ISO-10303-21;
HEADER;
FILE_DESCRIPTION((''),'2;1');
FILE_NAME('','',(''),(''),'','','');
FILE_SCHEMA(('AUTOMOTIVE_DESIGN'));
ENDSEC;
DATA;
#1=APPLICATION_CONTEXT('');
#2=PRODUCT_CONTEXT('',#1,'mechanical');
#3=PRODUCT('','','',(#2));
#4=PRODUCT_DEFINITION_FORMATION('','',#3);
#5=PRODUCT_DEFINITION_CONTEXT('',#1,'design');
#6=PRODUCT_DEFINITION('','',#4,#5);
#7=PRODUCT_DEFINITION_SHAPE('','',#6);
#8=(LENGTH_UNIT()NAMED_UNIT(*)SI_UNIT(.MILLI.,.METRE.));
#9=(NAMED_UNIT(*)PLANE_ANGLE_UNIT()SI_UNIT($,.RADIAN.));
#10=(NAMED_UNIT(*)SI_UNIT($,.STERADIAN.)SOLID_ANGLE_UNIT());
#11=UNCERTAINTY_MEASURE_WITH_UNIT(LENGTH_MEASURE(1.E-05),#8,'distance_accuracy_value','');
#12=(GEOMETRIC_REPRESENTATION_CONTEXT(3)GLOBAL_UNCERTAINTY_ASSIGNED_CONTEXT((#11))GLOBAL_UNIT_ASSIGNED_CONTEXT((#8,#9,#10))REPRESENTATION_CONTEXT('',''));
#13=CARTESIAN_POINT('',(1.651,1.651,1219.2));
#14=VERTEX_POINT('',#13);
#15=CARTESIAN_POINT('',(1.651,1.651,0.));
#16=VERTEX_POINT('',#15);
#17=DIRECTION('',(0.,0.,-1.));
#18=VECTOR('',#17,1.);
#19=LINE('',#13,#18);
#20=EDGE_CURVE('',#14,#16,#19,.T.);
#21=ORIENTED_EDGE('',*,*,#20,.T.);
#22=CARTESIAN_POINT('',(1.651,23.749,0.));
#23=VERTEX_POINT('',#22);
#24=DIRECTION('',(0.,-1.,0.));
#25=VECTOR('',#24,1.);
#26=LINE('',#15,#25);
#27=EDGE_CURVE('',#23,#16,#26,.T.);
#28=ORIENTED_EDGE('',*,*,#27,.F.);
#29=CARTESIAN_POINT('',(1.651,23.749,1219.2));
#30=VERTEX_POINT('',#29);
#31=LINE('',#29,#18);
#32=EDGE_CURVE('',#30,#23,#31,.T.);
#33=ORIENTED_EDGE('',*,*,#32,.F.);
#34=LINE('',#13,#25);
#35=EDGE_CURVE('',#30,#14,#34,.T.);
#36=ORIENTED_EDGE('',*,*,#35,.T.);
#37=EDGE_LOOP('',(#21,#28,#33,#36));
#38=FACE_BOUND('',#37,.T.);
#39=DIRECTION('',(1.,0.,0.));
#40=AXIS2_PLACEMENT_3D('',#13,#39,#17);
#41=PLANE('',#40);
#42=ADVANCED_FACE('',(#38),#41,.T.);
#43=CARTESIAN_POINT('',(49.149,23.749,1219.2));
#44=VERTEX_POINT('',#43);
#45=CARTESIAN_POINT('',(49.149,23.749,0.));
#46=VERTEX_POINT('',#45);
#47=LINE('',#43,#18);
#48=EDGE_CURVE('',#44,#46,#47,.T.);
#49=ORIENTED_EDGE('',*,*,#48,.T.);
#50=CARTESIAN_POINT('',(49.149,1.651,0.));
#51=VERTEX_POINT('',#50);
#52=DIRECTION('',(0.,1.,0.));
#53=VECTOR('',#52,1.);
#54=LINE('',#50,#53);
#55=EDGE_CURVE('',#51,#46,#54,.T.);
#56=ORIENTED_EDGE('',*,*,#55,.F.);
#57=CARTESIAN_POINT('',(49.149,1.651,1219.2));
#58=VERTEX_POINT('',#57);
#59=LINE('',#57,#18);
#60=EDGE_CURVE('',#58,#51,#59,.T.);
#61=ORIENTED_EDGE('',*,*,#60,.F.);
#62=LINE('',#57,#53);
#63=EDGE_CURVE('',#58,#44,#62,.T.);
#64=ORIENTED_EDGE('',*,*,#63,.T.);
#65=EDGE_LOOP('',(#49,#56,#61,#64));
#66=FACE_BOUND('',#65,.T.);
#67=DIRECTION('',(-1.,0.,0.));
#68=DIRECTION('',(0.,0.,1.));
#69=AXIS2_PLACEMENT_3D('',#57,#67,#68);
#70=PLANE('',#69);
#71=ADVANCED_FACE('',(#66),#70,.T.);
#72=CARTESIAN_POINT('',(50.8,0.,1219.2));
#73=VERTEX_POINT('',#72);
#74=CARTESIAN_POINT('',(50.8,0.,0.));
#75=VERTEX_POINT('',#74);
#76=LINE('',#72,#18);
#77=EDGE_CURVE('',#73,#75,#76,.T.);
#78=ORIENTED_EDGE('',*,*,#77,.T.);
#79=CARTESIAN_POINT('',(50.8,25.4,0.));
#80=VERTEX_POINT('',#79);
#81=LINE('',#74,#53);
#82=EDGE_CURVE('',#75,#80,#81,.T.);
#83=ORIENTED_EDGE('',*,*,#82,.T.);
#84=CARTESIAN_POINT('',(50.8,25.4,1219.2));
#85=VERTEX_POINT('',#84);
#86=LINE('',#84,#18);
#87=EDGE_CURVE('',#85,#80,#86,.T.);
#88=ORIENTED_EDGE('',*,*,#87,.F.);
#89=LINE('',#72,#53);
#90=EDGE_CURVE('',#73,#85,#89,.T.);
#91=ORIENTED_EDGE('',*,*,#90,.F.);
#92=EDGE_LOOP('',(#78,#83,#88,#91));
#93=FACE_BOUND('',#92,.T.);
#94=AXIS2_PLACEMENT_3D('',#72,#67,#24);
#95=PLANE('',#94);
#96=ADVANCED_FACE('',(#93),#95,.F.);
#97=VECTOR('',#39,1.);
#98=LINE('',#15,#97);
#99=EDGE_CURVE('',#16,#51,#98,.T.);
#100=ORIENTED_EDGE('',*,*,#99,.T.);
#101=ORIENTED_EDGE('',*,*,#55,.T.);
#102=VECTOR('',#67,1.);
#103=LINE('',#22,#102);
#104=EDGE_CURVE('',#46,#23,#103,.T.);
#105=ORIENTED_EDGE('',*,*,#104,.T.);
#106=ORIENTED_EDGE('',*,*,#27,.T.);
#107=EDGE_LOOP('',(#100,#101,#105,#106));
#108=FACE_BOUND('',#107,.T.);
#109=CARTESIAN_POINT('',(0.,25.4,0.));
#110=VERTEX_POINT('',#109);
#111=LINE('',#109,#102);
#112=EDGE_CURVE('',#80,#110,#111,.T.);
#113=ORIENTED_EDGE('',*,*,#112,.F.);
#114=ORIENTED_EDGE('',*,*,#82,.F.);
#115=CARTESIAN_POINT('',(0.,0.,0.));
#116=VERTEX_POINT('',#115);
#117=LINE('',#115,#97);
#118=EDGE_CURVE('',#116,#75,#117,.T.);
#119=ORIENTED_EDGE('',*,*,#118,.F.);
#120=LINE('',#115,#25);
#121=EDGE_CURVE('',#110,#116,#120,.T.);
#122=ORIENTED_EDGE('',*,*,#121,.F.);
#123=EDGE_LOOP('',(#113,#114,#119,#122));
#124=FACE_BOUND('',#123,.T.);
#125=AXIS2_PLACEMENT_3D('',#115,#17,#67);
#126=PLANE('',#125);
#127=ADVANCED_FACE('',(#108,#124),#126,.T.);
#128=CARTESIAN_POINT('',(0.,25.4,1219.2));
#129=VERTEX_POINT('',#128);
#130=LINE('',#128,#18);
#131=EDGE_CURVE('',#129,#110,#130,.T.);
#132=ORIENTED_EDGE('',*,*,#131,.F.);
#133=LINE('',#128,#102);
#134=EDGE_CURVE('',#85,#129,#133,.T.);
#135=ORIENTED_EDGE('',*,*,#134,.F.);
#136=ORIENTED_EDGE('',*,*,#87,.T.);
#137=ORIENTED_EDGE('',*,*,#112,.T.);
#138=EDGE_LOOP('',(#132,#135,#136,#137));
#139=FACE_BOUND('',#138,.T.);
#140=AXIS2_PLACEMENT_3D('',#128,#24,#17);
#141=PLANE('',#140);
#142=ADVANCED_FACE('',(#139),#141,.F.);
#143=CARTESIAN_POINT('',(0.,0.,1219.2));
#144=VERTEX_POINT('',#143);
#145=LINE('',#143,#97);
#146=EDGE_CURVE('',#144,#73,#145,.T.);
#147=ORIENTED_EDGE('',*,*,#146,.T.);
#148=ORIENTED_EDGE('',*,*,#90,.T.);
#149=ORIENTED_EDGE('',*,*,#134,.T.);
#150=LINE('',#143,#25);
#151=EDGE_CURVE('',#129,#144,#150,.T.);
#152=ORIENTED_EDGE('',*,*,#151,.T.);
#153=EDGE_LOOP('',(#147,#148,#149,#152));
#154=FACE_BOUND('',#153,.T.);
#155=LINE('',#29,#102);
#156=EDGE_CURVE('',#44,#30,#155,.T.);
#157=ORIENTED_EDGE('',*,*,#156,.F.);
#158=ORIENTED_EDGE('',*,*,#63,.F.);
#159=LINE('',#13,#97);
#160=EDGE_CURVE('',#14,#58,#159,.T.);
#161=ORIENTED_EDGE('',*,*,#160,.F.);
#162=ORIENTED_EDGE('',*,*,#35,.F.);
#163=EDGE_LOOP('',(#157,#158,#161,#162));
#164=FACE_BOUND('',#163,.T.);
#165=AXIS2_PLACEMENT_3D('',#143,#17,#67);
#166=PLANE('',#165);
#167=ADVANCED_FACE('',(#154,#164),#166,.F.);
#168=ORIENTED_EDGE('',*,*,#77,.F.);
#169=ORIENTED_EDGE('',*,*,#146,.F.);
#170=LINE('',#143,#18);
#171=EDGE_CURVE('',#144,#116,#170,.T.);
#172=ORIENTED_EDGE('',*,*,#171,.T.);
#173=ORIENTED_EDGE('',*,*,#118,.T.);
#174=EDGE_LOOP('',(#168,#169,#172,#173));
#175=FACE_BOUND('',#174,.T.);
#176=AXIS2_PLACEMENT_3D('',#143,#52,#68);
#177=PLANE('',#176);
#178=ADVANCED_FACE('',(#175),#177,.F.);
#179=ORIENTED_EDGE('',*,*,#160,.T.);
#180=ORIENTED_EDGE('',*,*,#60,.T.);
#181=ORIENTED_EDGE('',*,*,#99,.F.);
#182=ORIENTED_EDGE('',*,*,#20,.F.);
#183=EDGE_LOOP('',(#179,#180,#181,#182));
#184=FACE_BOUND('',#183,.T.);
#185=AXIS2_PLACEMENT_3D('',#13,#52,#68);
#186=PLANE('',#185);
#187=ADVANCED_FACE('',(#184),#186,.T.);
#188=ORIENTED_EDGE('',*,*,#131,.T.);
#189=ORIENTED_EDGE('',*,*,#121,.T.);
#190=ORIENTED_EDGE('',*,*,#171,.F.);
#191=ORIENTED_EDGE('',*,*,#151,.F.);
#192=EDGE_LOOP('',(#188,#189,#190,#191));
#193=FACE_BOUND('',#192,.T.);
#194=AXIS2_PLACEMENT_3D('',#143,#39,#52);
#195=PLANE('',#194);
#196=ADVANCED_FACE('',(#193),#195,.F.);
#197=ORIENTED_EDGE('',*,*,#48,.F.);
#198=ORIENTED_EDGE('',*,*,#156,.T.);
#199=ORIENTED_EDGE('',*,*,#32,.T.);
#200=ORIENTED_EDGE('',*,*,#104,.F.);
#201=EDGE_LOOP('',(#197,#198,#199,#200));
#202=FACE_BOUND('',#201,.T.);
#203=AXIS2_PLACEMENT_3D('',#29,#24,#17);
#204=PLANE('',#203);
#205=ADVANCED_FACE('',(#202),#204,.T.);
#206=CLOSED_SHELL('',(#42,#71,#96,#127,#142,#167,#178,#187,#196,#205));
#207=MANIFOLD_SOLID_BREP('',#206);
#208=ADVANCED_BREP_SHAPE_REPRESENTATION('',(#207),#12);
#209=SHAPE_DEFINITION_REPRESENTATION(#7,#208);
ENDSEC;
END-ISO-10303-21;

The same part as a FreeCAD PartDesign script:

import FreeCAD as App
import Part
import Sketcher
Q = App.Units.Quantity


def add_polygon(sketch, points):
    """Adds a closed chain of lines whose ends are joined by coincident constraints."""
    first, n = sketch.GeometryCount, len(points)
    for a, b in zip(points, points[1:] + points[:1]):
        sketch.addGeometry(Part.LineSegment(App.Vector(*a, 0), App.Vector(*b, 0)), False)
    for i in range(n):
        sketch.addConstraint(Sketcher.Constraint("Coincident", first + i, 2, first + (i + 1) % n, 1))

doc = App.newDocument("Part")
params = doc.addObject("Spreadsheet::Sheet", "Params")
for row, (alias, value) in enumerate([
    ("sketch1_width", "2 in"),
    ("sketch1_height", "1 in"),
    ("sketch1_width2", "1.87 in"),
    ("sketch1_height2", "0.87 in"),
    ("pad1_length", "48 in"),
], start=1):
    params.set(f"A{row}", alias)
    params.set(f"B{row}", "=" + value)
    params.setAlias(f"B{row}", alias)

body = doc.addObject("PartDesign::Body", "Body")

# Sketch on XY plane
sketch1 = body.newObject("Sketcher::SketchObject", "Sketch")
sketch1.AttachmentSupport = (doc.getObject("XY_Plane"), [""])
sketch1.MapMode = "FlatFace"
add_polygon(sketch1, [(0, 25), (0, 0), (51, 0), (51, 25)])  # lines 0-3
add_polygon(sketch1, [(49, 2), (2, 2), (2, 24), (49, 24)])  # lines 4-7
sketch1.addConstraint(Sketcher.Constraint("Vertical", 0))
sketch1.addConstraint(Sketcher.Constraint("Horizontal", 1))
sketch1.addConstraint(Sketcher.Constraint("Vertical", 2))
sketch1.addConstraint(Sketcher.Constraint("Horizontal", 3))
sketch1.addConstraint(Sketcher.Constraint("Horizontal", 4))
sketch1.addConstraint(Sketcher.Constraint("Vertical", 5))
sketch1.addConstraint(Sketcher.Constraint("Horizontal", 6))
sketch1.addConstraint(Sketcher.Constraint("Vertical", 7))
sketch1.addConstraint(Sketcher.Constraint("Coincident", 0, 2, -1, 1))
sketch1.addConstraint(Sketcher.Constraint("DistanceX", 1, 1, 1, 2, Q("2 in")))
sketch1.addConstraint(Sketcher.Constraint("DistanceY", 0, 2, 0, 1, Q("1 in")))
sketch1.addConstraint(Sketcher.Constraint("DistanceX", 4, 2, 4, 1, Q("1.87 in")))
sketch1.addConstraint(Sketcher.Constraint("DistanceY", 5, 1, 5, 2, Q("0.87 in")))
sketch1.addConstraint(Sketcher.Constraint("DistanceX", -1, 1, 4, 2, Q("0.065 in")))
sketch1.addConstraint(Sketcher.Constraint("DistanceY", -1, 1, 4, 2, Q("0.065 in")))
sketch1.setExpression("Constraints[17]", "Params.sketch1_width")
sketch1.setExpression("Constraints[18]", "Params.sketch1_height")
sketch1.setExpression("Constraints[19]", "Params.sketch1_width2")
sketch1.setExpression("Constraints[20]", "Params.sketch1_height2")
pad1 = body.newObject("PartDesign::Pad", "Pad")
pad1.Profile = sketch1
pad1.setExpression("Length", "Params.pad1_length")

doc.recompute()
